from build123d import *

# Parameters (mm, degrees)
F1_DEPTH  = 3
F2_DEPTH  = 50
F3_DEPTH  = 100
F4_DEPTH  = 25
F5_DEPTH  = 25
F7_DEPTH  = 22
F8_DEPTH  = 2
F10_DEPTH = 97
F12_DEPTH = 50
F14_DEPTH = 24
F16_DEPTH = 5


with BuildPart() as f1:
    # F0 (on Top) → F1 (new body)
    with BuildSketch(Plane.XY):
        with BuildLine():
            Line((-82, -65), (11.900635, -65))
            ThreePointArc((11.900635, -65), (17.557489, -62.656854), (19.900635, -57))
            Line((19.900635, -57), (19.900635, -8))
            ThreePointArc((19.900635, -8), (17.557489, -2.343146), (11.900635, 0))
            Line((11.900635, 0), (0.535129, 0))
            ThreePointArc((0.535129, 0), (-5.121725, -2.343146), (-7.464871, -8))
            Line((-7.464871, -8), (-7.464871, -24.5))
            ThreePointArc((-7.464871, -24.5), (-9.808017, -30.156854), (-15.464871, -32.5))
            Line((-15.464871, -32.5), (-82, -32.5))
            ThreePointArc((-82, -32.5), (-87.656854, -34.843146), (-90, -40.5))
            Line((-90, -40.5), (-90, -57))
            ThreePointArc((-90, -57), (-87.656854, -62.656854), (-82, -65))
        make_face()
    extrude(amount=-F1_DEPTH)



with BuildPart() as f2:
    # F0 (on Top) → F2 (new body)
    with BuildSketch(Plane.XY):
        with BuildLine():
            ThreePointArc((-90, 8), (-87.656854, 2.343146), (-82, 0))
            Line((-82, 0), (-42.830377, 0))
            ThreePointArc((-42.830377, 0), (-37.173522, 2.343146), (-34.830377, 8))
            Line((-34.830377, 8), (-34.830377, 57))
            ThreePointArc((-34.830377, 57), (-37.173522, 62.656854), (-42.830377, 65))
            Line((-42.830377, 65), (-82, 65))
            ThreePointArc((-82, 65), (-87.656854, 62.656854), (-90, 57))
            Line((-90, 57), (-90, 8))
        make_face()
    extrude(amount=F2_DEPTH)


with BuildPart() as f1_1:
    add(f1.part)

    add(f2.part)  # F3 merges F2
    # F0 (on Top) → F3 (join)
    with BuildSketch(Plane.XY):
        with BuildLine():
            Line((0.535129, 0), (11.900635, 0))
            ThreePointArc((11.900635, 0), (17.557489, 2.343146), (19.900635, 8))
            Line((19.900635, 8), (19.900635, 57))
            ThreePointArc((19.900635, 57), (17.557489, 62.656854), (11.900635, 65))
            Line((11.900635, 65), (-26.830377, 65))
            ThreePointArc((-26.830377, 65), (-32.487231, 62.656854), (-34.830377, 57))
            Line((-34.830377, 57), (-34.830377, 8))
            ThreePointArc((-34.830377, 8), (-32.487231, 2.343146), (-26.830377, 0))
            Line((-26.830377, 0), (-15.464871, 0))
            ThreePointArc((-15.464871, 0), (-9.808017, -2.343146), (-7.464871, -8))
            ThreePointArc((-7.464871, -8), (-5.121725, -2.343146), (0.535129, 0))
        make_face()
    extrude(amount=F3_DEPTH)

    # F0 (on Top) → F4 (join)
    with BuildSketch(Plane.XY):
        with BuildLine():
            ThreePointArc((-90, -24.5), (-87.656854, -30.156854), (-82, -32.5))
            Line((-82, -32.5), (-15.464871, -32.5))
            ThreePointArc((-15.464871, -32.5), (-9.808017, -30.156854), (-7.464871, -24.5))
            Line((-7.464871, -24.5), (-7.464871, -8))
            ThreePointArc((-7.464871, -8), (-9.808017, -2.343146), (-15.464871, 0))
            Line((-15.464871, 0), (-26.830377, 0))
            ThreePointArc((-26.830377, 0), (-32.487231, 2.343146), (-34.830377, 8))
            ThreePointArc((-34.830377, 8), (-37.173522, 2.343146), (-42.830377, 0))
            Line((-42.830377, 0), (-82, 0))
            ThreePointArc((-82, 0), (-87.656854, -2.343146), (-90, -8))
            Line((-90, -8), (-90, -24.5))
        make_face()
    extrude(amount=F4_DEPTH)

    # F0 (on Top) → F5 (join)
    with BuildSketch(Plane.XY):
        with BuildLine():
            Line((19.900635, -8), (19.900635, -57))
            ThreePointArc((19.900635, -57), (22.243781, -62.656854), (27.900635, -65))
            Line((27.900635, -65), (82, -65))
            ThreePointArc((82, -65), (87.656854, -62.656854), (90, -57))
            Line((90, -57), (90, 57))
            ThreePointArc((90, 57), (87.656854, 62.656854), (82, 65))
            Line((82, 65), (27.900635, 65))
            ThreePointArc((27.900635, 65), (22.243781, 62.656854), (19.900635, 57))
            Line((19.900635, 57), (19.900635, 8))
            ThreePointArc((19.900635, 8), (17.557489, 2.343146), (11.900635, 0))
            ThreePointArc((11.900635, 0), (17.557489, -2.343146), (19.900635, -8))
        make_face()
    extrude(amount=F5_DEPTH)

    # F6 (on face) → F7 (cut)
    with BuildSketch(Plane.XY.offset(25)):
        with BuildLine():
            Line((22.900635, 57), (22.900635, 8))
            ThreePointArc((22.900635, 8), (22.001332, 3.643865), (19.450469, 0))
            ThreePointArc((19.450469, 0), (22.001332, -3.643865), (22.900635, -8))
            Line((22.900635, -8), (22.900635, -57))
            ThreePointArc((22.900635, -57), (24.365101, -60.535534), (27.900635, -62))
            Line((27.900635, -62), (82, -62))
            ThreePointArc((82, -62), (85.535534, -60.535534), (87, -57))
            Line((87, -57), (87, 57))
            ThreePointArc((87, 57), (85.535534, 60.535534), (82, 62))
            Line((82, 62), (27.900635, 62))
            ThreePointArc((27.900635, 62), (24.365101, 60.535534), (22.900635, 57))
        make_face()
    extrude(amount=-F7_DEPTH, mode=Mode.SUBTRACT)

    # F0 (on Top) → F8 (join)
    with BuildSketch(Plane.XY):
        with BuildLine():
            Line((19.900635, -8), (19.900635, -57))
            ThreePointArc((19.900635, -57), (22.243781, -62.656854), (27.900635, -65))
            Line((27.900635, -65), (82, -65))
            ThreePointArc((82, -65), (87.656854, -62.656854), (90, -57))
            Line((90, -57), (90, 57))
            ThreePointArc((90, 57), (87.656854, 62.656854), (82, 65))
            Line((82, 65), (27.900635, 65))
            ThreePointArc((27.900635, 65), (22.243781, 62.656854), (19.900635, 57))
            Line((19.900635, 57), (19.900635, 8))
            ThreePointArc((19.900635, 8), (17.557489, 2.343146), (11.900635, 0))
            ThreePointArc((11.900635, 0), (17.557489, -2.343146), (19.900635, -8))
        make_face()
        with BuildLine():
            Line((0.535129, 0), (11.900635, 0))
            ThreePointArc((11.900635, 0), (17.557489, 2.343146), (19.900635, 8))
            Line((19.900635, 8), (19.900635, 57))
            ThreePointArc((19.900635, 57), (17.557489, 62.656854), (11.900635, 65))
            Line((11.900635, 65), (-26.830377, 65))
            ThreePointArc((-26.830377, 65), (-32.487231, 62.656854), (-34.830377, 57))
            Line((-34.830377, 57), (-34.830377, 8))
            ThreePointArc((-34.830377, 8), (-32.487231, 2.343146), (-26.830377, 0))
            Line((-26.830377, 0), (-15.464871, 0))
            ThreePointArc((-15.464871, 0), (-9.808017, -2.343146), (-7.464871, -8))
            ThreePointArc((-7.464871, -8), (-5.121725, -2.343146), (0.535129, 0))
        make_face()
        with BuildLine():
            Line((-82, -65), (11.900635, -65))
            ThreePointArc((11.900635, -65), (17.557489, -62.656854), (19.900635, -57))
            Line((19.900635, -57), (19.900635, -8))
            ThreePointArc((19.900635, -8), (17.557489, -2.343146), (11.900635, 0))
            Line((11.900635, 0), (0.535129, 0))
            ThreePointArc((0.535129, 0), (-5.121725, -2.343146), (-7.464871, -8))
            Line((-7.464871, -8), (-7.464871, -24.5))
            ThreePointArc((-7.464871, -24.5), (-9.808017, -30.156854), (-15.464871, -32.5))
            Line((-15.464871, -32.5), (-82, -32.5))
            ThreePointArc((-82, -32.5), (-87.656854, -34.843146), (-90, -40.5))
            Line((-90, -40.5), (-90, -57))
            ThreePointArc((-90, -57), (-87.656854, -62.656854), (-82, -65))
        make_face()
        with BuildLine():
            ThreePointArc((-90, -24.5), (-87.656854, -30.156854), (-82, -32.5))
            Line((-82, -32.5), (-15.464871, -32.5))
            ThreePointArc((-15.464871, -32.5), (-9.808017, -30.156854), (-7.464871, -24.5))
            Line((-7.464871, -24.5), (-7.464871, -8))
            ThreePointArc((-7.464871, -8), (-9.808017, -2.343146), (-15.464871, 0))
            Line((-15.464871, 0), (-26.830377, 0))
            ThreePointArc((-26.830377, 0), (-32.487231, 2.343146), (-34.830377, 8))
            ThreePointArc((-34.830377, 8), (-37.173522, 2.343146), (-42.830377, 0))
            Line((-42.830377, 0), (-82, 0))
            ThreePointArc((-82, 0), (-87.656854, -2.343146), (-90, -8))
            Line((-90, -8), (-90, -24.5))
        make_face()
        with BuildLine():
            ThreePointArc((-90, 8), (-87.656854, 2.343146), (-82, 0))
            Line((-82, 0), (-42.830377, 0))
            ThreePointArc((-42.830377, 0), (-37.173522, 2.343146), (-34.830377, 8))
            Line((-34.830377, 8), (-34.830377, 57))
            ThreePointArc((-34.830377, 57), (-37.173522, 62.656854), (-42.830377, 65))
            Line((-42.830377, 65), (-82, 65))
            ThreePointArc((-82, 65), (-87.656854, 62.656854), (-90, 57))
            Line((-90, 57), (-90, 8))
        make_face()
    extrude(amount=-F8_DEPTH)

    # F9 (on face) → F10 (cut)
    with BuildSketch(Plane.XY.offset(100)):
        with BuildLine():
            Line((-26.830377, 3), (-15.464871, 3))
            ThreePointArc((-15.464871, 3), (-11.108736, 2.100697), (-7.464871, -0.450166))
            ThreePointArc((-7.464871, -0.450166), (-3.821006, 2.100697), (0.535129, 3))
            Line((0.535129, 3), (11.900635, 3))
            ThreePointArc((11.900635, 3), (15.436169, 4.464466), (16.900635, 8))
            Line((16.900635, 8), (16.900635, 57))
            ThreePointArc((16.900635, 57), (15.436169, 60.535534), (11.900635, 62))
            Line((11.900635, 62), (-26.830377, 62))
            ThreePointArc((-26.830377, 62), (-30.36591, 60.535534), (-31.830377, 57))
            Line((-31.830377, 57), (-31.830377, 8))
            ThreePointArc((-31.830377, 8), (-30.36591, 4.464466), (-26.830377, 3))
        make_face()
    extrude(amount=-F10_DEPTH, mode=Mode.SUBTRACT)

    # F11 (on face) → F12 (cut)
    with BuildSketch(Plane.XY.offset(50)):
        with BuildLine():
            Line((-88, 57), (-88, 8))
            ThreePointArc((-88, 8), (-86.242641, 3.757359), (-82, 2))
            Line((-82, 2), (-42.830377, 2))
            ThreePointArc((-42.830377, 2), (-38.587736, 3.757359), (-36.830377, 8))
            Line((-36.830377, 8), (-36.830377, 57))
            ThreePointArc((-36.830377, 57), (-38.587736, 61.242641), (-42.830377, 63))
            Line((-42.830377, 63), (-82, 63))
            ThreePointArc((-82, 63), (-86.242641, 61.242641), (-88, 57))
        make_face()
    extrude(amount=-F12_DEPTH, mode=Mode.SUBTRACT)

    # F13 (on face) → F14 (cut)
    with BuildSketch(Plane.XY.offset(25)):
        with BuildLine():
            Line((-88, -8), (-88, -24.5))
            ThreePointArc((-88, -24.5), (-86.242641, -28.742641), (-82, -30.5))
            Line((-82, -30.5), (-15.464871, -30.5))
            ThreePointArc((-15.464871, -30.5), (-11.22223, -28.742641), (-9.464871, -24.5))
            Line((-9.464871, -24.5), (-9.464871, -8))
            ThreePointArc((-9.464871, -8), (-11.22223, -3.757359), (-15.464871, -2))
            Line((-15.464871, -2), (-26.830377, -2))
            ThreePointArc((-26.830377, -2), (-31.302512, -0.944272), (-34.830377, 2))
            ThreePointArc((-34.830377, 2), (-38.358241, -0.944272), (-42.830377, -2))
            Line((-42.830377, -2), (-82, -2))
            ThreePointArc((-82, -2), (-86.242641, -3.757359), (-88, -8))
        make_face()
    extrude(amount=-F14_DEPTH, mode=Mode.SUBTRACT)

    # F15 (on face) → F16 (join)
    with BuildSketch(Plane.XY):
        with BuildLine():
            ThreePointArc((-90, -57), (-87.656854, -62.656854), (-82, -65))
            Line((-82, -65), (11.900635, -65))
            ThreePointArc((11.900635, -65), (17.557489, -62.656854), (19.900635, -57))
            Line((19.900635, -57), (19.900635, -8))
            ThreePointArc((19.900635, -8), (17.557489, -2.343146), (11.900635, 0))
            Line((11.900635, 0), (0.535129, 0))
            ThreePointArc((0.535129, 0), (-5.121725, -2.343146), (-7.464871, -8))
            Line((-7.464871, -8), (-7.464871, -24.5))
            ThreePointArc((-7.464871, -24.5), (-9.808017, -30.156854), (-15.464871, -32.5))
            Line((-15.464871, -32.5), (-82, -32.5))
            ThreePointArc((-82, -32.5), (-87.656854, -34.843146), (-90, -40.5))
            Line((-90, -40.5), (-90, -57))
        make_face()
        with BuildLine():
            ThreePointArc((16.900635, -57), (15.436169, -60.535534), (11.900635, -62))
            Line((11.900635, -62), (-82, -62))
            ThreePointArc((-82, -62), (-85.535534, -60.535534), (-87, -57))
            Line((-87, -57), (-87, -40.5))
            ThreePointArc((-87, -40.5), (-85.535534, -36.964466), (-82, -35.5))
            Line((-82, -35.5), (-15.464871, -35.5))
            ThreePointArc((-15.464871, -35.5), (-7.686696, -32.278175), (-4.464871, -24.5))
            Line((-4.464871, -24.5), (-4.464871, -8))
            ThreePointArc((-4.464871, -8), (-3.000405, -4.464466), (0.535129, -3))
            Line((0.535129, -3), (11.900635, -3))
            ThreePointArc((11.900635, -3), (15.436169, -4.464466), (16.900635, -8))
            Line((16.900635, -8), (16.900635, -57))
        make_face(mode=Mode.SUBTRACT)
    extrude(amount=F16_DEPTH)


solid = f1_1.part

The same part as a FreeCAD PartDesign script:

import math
import FreeCAD as App
import Part
import Sketcher
Q = App.Units.Quantity

doc = App.newDocument("Part")
body = doc.addObject("PartDesign::Body", "Body")

sketch1 = doc.addObject("Sketcher::SketchObject", "Sketch")
body.addObject(sketch1)
sketch1.AttachmentSupport = (doc.XY_Plane, [""])
sketch1.MapMode = "FlatFace"
sketch1.addGeometry([
    Part.LineSegment(App.Vector(-82, -65, 0), App.Vector(12, -65, 0)),
    Part.ArcOfCircle(Part.Circle(App.Vector(12, -57, 0), App.Vector(0, 0, 1), 8), math.radians(-90), math.radians(0)),
    Part.LineSegment(App.Vector(20, -57, 0), App.Vector(20, -8, 0)),
    Part.ArcOfCircle(Part.Circle(App.Vector(12, -8, 0), App.Vector(0, 0, 1), 8), math.radians(0), math.radians(90)),
    Part.LineSegment(App.Vector(12, 0, 0), App.Vector(1, 0, 0)),
    Part.ArcOfCircle(Part.Circle(App.Vector(1, -8, 0), App.Vector(0, 0, 1), 8), math.radians(90), math.radians(180)),
    Part.LineSegment(App.Vector(-7, -8, 0), App.Vector(-7, -24, 0)),
    Part.ArcOfCircle(Part.Circle(App.Vector(-15, -24, 0), App.Vector(0, 0, 1), 8), math.radians(-90), math.radians(0)),
    Part.LineSegment(App.Vector(-15, -32, 0), App.Vector(-82, -32, 0)),
    Part.ArcOfCircle(Part.Circle(App.Vector(-82, -41, 0), App.Vector(0, 0, 1), 8), math.radians(90), math.radians(180)),
    Part.LineSegment(App.Vector(-90, -40, 0), App.Vector(-90, -57, 0)),
    Part.ArcOfCircle(Part.Circle(App.Vector(-82, -57, 0), App.Vector(0, 0, 1), 8), math.radians(-180), math.radians(-90)),
], False)
sketch1.addConstraint([
    Sketcher.Constraint("Tangent", 0, 2, 1, 1),
    Sketcher.Constraint("Tangent", 1, 2, 2, 1),
    Sketcher.Constraint("Tangent", 2, 2, 3, 1),
    Sketcher.Constraint("Tangent", 3, 2, 4, 1),
    Sketcher.Constraint("Tangent", 4, 2, 5, 1),
    Sketcher.Constraint("Tangent", 5, 2, 6, 1),
    Sketcher.Constraint("Tangent", 6, 2, 7, 2),
    Sketcher.Constraint("Tangent", 7, 1, 8, 1),
    Sketcher.Constraint("Tangent", 8, 2, 9, 1),
    Sketcher.Constraint("Tangent", 9, 2, 10, 1),
    Sketcher.Constraint("Tangent", 10, 2, 11, 1),
    Sketcher.Constraint("Tangent", 11, 2, 0, 1),
    Sketcher.Constraint("Horizontal", 0),
    Sketcher.Constraint("Vertical", 2),
    Sketcher.Constraint("Horizontal", 4),
    Sketcher.Constraint("Vertical", 6),
    Sketcher.Constraint("Horizontal", 8),
    Sketcher.Constraint("Vertical", 10),
    Sketcher.Constraint("Equal", 1, 3),
    Sketcher.Constraint("Equal", 3, 5),
    Sketcher.Constraint("Equal", 5, 7),
    Sketcher.Constraint("Equal", 7, 9),
    Sketcher.Constraint("Equal", 9, 11),
    Sketcher.Constraint("PointOnObject", 3, 2, -1),
    Sketcher.Constraint("Equal", 6, 10),
    Sketcher.Constraint("Radius", 1, Q("8.000001 mm")),
    Sketcher.Constraint("DistanceY", 2, 1, 2, 2, Q("49 mm")),
    Sketcher.Constraint("DistanceX", 9, 3, -1, 1, Q("81.999999 mm")),
    Sketcher.Constraint("DistanceX", 8, 2, 8, 1, Q("66.535129 mm")),
    Sketcher.Constraint("DistanceX", 0, 1, 0, 2, Q("93.900635 mm")),
])
pad1 = doc.addObject("PartDesign::Pad", "Pad")
body.addObject(pad1)
pad1.Profile = sketch1
pad1.Length = 3
pad1.Reversed = True
body2 = doc.addObject("PartDesign::Body", "Body001")

sketch2 = doc.addObject("Sketcher::SketchObject", "Sketch001")
body2.addObject(sketch2)
sketch2.AttachmentSupport = (doc.getObject("XY_Plane001"), [""])
sketch2.MapMode = "FlatFace"
sketch2.addGeometry([
    Part.ArcOfCircle(Part.Circle(App.Vector(-82, 8, 0), App.Vector(0, 0, 1), 8), math.radians(-180), math.radians(-90)),
    Part.LineSegment(App.Vector(-82, 0, 0), App.Vector(-43, 0, 0)),
    Part.ArcOfCircle(Part.Circle(App.Vector(-43, 8, 0), App.Vector(0, 0, 1), 8), math.radians(-90), math.radians(0)),
    Part.LineSegment(App.Vector(-35, 8, 0), App.Vector(-35, 57, 0)),
    Part.ArcOfCircle(Part.Circle(App.Vector(-43, 57, 0), App.Vector(0, 0, 1), 8), math.radians(0), math.radians(90)),
    Part.LineSegment(App.Vector(-43, 65, 0), App.Vector(-82, 65, 0)),
    Part.ArcOfCircle(Part.Circle(App.Vector(-82, 57, 0), App.Vector(0, 0, 1), 8), math.radians(90), math.radians(180)),
    Part.LineSegment(App.Vector(-90, 57, 0), App.Vector(-90, 8, 0)),
], False)
sketch2.addConstraint([
    Sketcher.Constraint("Tangent", 0, 2, 1, 1),
    Sketcher.Constraint("Tangent", 1, 2, 2, 1),
    Sketcher.Constraint("Tangent", 2, 2, 3, 1),
    Sketcher.Constraint("Tangent", 3, 2, 4, 1),
    Sketcher.Constraint("Tangent", 4, 2, 5, 1),
    Sketcher.Constraint("Tangent", 5, 2, 6, 1),
    Sketcher.Constraint("Tangent", 6, 2, 7, 1),
    Sketcher.Constraint("Tangent", 7, 2, 0, 1),
    Sketcher.Constraint("Horizontal", 1),
    Sketcher.Constraint("Vertical", 3),
    Sketcher.Constraint("Horizontal", 5),
    Sketcher.Constraint("Vertical", 7),
    Sketcher.Constraint("Equal", 0, 2),
    Sketcher.Constraint("Equal", 2, 4),
    Sketcher.Constraint("Equal", 4, 6),
    Sketcher.Constraint("PointOnObject", 0, 2, -1),
    Sketcher.Constraint("Radius", 0, Q("8.000001 mm")),
    Sketcher.Constraint("DistanceY", 3, 1, 3, 2, Q("49 mm")),
    Sketcher.Constraint("DistanceX", 0, 3, -1, 1, Q("81.999999 mm")),
    Sketcher.Constraint("DistanceX", 1, 1, 1, 2, Q("39.169623 mm")),
])
pad2 = doc.addObject("PartDesign::Pad", "Pad001")
body2.addObject(pad2)
pad2.Profile = sketch2
pad2.Length = 50
body.AllowCompound = True
doc.recompute()

boolean = doc.addObject("PartDesign::Boolean", "Boolean")
body.addObject(boolean)
boolean.Type = "Fuse"
boolean.addObjects([body2])

sketch3 = doc.addObject("Sketcher::SketchObject", "Sketch002")
body.addObject(sketch3)
sketch3.AttachmentSupport = (doc.XY_Plane, [""])
sketch3.MapMode = "FlatFace"
sketch3.addGeometry([
    Part.LineSegment(App.Vector(1, 0, 0), App.Vector(12, 0, 0)),
    Part.ArcOfCircle(Part.Circle(App.Vector(12, 8, 0), App.Vector(0, 0, 1), 8), math.radians(-90), math.radians(0)),
    Part.LineSegment(App.Vector(20, 8, 0), App.Vector(20, 57, 0)),
    Part.ArcOfCircle(Part.Circle(App.Vector(12, 57, 0), App.Vector(0, 0, 1), 8), math.radians(0), math.radians(90)),
    Part.LineSegment(App.Vector(12, 65, 0), App.Vector(-27, 65, 0)),
    Part.ArcOfCircle(Part.Circle(App.Vector(-27, 57, 0), App.Vector(0, 0, 1), 8), math.radians(90), math.radians(180)),
    Part.LineSegment(App.Vector(-35, 57, 0), App.Vector(-35, 8, 0)),
    Part.ArcOfCircle(Part.Circle(App.Vector(-27, 8, 0), App.Vector(0, 0, 1), 8), math.radians(-180), math.radians(-90)),
    Part.LineSegment(App.Vector(-27, 0, 0), App.Vector(-15, 0, 0)),
    Part.ArcOfCircle(Part.Circle(App.Vector(-15, -8, 0), App.Vector(0, 0, 1), 8), math.radians(0), math.radians(90)),
    Part.ArcOfCircle(Part.Circle(App.Vector(1, -8, 0), App.Vector(0, 0, 1), 8), math.radians(90), math.radians(180)),
], False)
sketch3.addConstraint([
    Sketcher.Constraint("Tangent", 0, 2, 1, 1),
    Sketcher.Constraint("Tangent", 1, 2, 2, 1),
    Sketcher.Constraint("Tangent", 2, 2, 3, 1),
    Sketcher.Constraint("Tangent", 3, 2, 4, 1),
    Sketcher.Constraint("Tangent", 4, 2, 5, 1),
    Sketcher.Constraint("Tangent", 5, 2, 6, 1),
    Sketcher.Constraint("Tangent", 6, 2, 7, 1),
    Sketcher.Constraint("Tangent", 7, 2, 8, 1),
    Sketcher.Constraint("Tangent", 8, 2, 9, 2),
    Sketcher.Constraint("Tangent", 9, 1, 10, 2),
    Sketcher.Constraint("Tangent", 10, 1, 0, 1),
    Sketcher.Constraint("Horizontal", 0),
    Sketcher.Constraint("Vertical", 2),
    Sketcher.Constraint("Horizontal", 4),
    Sketcher.Constraint("Vertical", 6),
    Sketcher.Constraint("Horizontal", 8),
    Sketcher.Constraint("Equal", 1, 3),
    Sketcher.Constraint("Equal", 3, 5),
    Sketcher.Constraint("Equal", 5, 7),
    Sketcher.Constraint("Equal", 7, 9),
    Sketcher.Constraint("Equal", 9, 10),
    Sketcher.Constraint("PointOnObject", 0, 2, -1),
    Sketcher.Constraint("PointOnObject", 7, 2, -1),
    Sketcher.Constraint("Equal", 0, 8),
    Sketcher.Constraint("Radius", 1, Q("8.000001 mm")),
    Sketcher.Constraint("DistanceY", 2, 1, 2, 2, Q("49 mm")),
    Sketcher.Constraint("DistanceX", 0, 1, 0, 2, Q("11.365506 mm")),
    Sketcher.Constraint("DistanceX", 9, 3, -1, 1, Q("15.464872 mm")),
])
pad3 = doc.addObject("PartDesign::Pad", "Pad002")
body.addObject(pad3)
pad3.Profile = sketch3
pad3.Length = 100

sketch4 = doc.addObject("Sketcher::SketchObject", "Sketch003")
body.addObject(sketch4)
sketch4.AttachmentSupport = (doc.XY_Plane, [""])
sketch4.MapMode = "FlatFace"
sketch4.addGeometry([
    Part.ArcOfCircle(Part.Circle(App.Vector(-82, -24, 0), App.Vector(0, 0, 1), 8), math.radians(-180), math.radians(-90)),
    Part.LineSegment(App.Vector(-82, -32, 0), App.Vector(-15, -32, 0)),
    Part.ArcOfCircle(Part.Circle(App.Vector(-15, -24, 0), App.Vector(0, 0, 1), 8), math.radians(-90), math.radians(0)),
    Part.LineSegment(App.Vector(-7, -24, 0), App.Vector(-7, -8, 0)),
    Part.ArcOfCircle(Part.Circle(App.Vector(-15, -8, 0), App.Vector(0, 0, 1), 8), math.radians(0), math.radians(90)),
    Part.LineSegment(App.Vector(-15, 0, 0), App.Vector(-27, 0, 0)),
    Part.ArcOfCircle(Part.Circle(App.Vector(-27, 8, 0), App.Vector(0, 0, 1), 8), math.radians(-180), math.radians(-90)),
    Part.ArcOfCircle(Part.Circle(App.Vector(-43, 8, 0), App.Vector(0, 0, 1), 8), math.radians(-90), math.radians(0)),
    Part.LineSegment(App.Vector(-43, 0, 0), App.Vector(-82, 0, 0)),
    Part.ArcOfCircle(Part.Circle(App.Vector(-82, -8, 0), App.Vector(0, 0, 1), 8), math.radians(90), math.radians(180)),
    Part.LineSegment(App.Vector(-90, -8, 0), App.Vector(-90, -24, 0)),
], False)
sketch4.addConstraint([
    Sketcher.Constraint("Tangent", 0, 2, 1, 1),
    Sketcher.Constraint("Tangent", 1, 2, 2, 1),
    Sketcher.Constraint("Tangent", 2, 2, 3, 1),
    Sketcher.Constraint("Tangent", 3, 2, 4, 1),
    Sketcher.Constraint("Tangent", 4, 2, 5, 1),
    Sketcher.Constraint("Tangent", 5, 2, 6, 2),
    Sketcher.Constraint("Tangent", 6, 1, 7, 2),
    Sketcher.Constraint("Tangent", 7, 1, 8, 1),
    Sketcher.Constraint("Tangent", 8, 2, 9, 1),
    Sketcher.Constraint("Tangent", 9, 2, 10, 1),
    Sketcher.Constraint("Tangent", 10, 2, 0, 1),
    Sketcher.Constraint("Horizontal", 1),
    Sketcher.Constraint("Vertical", 3),
    Sketcher.Constraint("Horizontal", 5),
    Sketcher.Constraint("Horizontal", 8),
    Sketcher.Constraint("Vertical", 10),
    Sketcher.Constraint("Equal", 0, 2),
    Sketcher.Constraint("Equal", 2, 4),
    Sketcher.Constraint("Equal", 4, 6),
    Sketcher.Constraint("Equal", 6, 7),
    Sketcher.Constraint("Equal", 7, 9),
    Sketcher.Constraint("PointOnObject", 4, 2, -1),
    Sketcher.Constraint("PointOnObject", 7, 1, -1),
    Sketcher.Constraint("Radius", 0, Q("8.000001 mm")),
    Sketcher.Constraint("DistanceY", 3, 1, 3, 2, Q("16.5 mm")),
    Sketcher.Constraint("DistanceX", 0, 3, -1, 1, Q("81.999999 mm")),
    Sketcher.Constraint("DistanceX", 1, 1, 1, 2, Q("66.535129 mm")),
    Sketcher.Constraint("DistanceX", 5, 2, 5, 1, Q("11.365506 mm")),
])
pad4 = doc.addObject("PartDesign::Pad", "Pad003")
body.addObject(pad4)
pad4.Profile = sketch4
pad4.Length = 25

sketch5 = doc.addObject("Sketcher::SketchObject", "Sketch004")
body.addObject(sketch5)
sketch5.AttachmentSupport = (doc.XY_Plane, [""])
sketch5.MapMode = "FlatFace"
sketch5.addGeometry([
    Part.LineSegment(App.Vector(20, -8, 0), App.Vector(20, -57, 0)),
    Part.ArcOfCircle(Part.Circle(App.Vector(28, -57, 0), App.Vector(0, 0, 1), 8), math.radians(-180), math.radians(-90)),
    Part.LineSegment(App.Vector(28, -65, 0), App.Vector(82, -65, 0)),
    Part.ArcOfCircle(Part.Circle(App.Vector(82, -57, 0), App.Vector(0, 0, 1), 8), math.radians(-90), math.radians(0)),
    Part.LineSegment(App.Vector(90, -57, 0), App.Vector(90, 57, 0)),
    Part.ArcOfCircle(Part.Circle(App.Vector(82, 57, 0), App.Vector(0, 0, 1), 8), math.radians(0), math.radians(90)),
    Part.LineSegment(App.Vector(82, 65, 0), App.Vector(28, 65, 0)),
    Part.ArcOfCircle(Part.Circle(App.Vector(28, 57, 0), App.Vector(0, 0, 1), 8), math.radians(90), math.radians(180)),
    Part.LineSegment(App.Vector(20, 57, 0), App.Vector(20, 8, 0)),
    Part.ArcOfCircle(Part.Circle(App.Vector(12, 8, 0), App.Vector(0, 0, 1), 8), math.radians(-90), math.radians(0)),
    Part.ArcOfCircle(Part.Circle(App.Vector(12, -8, 0), App.Vector(0, 0, 1), 8), math.radians(0), math.radians(90)),
], False)
sketch5.addConstraint([
    Sketcher.Constraint("Tangent", 0, 2, 1, 1),
    Sketcher.Constraint("Tangent", 1, 2, 2, 1),
    Sketcher.Constraint("Tangent", 2, 2, 3, 1),
    Sketcher.Constraint("Tangent", 3, 2, 4, 1),
    Sketcher.Constraint("Tangent", 4, 2, 5, 1),
    Sketcher.Constraint("Tangent", 5, 2, 6, 1),
    Sketcher.Constraint("Tangent", 6, 2, 7, 1),
    Sketcher.Constraint("Tangent", 7, 2, 8, 1),
    Sketcher.Constraint("Tangent", 8, 2, 9, 2),
    Sketcher.Constraint("Tangent", 9, 1, 10, 2),
    Sketcher.Constraint("Tangent", 10, 1, 0, 1),
    Sketcher.Constraint("Vertical", 0),
    Sketcher.Constraint("Horizontal", 2),
    Sketcher.Constraint("Vertical", 4),
    Sketcher.Constraint("Horizontal", 6),
    Sketcher.Constraint("Vertical", 8),
    Sketcher.Constraint("Equal", 1, 3),
    Sketcher.Constraint("Equal", 3, 5),
    Sketcher.Constraint("Equal", 5, 7),
    Sketcher.Constraint("Equal", 7, 9),
    Sketcher.Constraint("Equal", 9, 10),
    Sketcher.Constraint("Symmetric", 1, 3, 7, 3, -1),
    Sketcher.Constraint("PointOnObject", 9, 1, -1),
    Sketcher.Constraint("Radius", 1, Q("8.000001 mm")),
    Sketcher.Constraint("DistanceY", 0, 2, 0, 1, Q("49 mm")),
    Sketcher.Constraint("DistanceX", -1, 1, 3, 3, Q("81.999999 mm")),
    Sketcher.Constraint("DistanceX", 2, 1, 2, 2, Q("54.099365 mm")),
])
pad5 = doc.addObject("PartDesign::Pad", "Pad004")
body.addObject(pad5)
pad5.Profile = sketch5
pad5.Length = 25

sketch6 = doc.addObject("Sketcher::SketchObject", "Sketch005")
body.addObject(sketch6)
sketch6.AttachmentSupport = (doc.XY_Plane, [""])
sketch6.MapMode = "FlatFace"
sketch6.AttachmentOffset = App.Placement(App.Vector(0, 0, 25), App.Rotation())
sketch6.addGeometry([
    Part.LineSegment(App.Vector(22.9, 57, 0), App.Vector(22.9, 8, 0)),
    Part.ArcOfCircle(Part.Circle(App.Vector(11.9, 8, 0), App.Vector(0, 0, 1), 11), math.radians(-47), math.radians(0)),
    Part.ArcOfCircle(Part.Circle(App.Vector(11.9, -8, 0), App.Vector(0, 0, 1), 11), math.radians(0), math.radians(47)),
    Part.LineSegment(App.Vector(22.9, -8, 0), App.Vector(22.9, -57, 0)),
    Part.ArcOfCircle(Part.Circle(App.Vector(27.9, -57, 0), App.Vector(0, 0, 1), 5), math.radians(180), math.radians(270)),
    Part.LineSegment(App.Vector(27.9, -62, 0), App.Vector(82, -62, 0)),
    Part.ArcOfCircle(Part.Circle(App.Vector(82, -57, 0), App.Vector(0, 0, 1), 5), math.radians(-90), math.radians(0)),
    Part.LineSegment(App.Vector(87, -57, 0), App.Vector(87, 57, 0)),
    Part.ArcOfCircle(Part.Circle(App.Vector(82, 57, 0), App.Vector(0, 0, 1), 5), math.radians(0), math.radians(90)),
    Part.LineSegment(App.Vector(82, 62, 0), App.Vector(27.9, 62, 0)),
    Part.ArcOfCircle(Part.Circle(App.Vector(27.9, 57, 0), App.Vector(0, 0, 1), 5), math.radians(90), math.radians(180)),
], False)
sketch6.addConstraint([
    Sketcher.Constraint("Tangent", 0, 2, 1, 2),
    Sketcher.Constraint("Coincident", 1, 1, 2, 2),
    Sketcher.Constraint("Tangent", 2, 1, 3, 1),
    Sketcher.Constraint("Tangent", 3, 2, 4, 1),
    Sketcher.Constraint("Tangent", 4, 2, 5, 1),
    Sketcher.Constraint("Tangent", 5, 2, 6, 1),
    Sketcher.Constraint("Tangent", 6, 2, 7, 1),
    Sketcher.Constraint("Tangent", 7, 2, 8, 1),
    Sketcher.Constraint("Tangent", 8, 2, 9, 1),
    Sketcher.Constraint("Tangent", 9, 2, 10, 1),
    Sketcher.Constraint("Tangent", 10, 2, 0, 1),
    Sketcher.Constraint("Vertical", 0),
    Sketcher.Constraint("Vertical", 3),
    Sketcher.Constraint("Horizontal", 5),
    Sketcher.Constraint("Vertical", 7),
    Sketcher.Constraint("Horizontal", 9),
    Sketcher.Constraint("Equal", 1, 2),
    Sketcher.Constraint("Equal", 4, 6),
    Sketcher.Constraint("Equal", 6, 8),
    Sketcher.Constraint("Equal", 8, 10),
    Sketcher.Constraint("Symmetric", 1, 3, 2, 3, -1),
    Sketcher.Constraint("Equal", 0, 3),
    Sketcher.Constraint("Radius", 4, Q("5 mm")),
    Sketcher.Constraint("DistanceY", 0, 2, 0, 1, Q("49 mm")),
    Sketcher.Constraint("DistanceY", 7, 1, 7, 2, Q("114 mm")),
    Sketcher.Constraint("DistanceX", -1, 1, 6, 3, Q("82 mm")),
    Sketcher.Constraint("DistanceX", 2, 3, 4, 3, Q("16.000002 mm")),
    Sketcher.Constraint("DistanceX", 5, 1, 5, 2, Q("54.099365 mm")),
])
pocket1 = doc.addObject("PartDesign::Pocket", "Pocket")
body.addObject(pocket1)
pocket1.Profile = sketch6
pocket1.Length = 22

sketch7 = doc.addObject("Sketcher::SketchObject", "Sketch006")
body.addObject(sketch7)
sketch7.AttachmentSupport = (doc.XY_Plane, [""])
sketch7.MapMode = "FlatFace"
sketch7.addGeometry([
    Part.ArcOfCircle(Part.Circle(App.Vector(28, -57, 0), App.Vector(0, 0, 1), 8), math.radians(-180), math.radians(-90)),
    Part.LineSegment(App.Vector(28, -65, 0), App.Vector(82, -65, 0)),
    Part.ArcOfCircle(Part.Circle(App.Vector(82, -57, 0), App.Vector(0, 0, 1), 8), math.radians(-90), math.radians(0)),
    Part.LineSegment(App.Vector(90, -57, 0), App.Vector(90, 57, 0)),
    Part.ArcOfCircle(Part.Circle(App.Vector(82, 57, 0), App.Vector(0, 0, 1), 8), math.radians(0), math.radians(90)),
    Part.LineSegment(App.Vector(82, 65, 0), App.Vector(28, 65, 0)),
    Part.ArcOfCircle(Part.Circle(App.Vector(28, 57, 0), App.Vector(0, 0, 1), 8), math.radians(90), math.radians(180)),
    Part.ArcOfCircle(Part.Circle(App.Vector(12, 57, 0), App.Vector(0, 0, 1), 8), math.radians(0), math.radians(90)),
    Part.LineSegment(App.Vector(12, 65, 0), App.Vector(-27, 65, 0)),
    Part.ArcOfCircle(Part.Circle(App.Vector(-27, 57, 0), App.Vector(0, 0, 1), 8), math.radians(90), math.radians(180)),
    Part.ArcOfCircle(Part.Circle(App.Vector(-43, 57, 0), App.Vector(0, 0, 1), 8), math.radians(0), math.radians(90)),
    Part.LineSegment(App.Vector(-43, 65, 0), App.Vector(-82, 65, 0)),
    Part.ArcOfCircle(Part.Circle(App.Vector(-82, 57, 0), App.Vector(0, 0, 1), 8), math.radians(90), math.radians(180)),
    Part.LineSegment(App.Vector(-90, 57, 0), App.Vector(-90, 8, 0)),
    Part.ArcOfCircle(Part.Circle(App.Vector(-82, 8, 0), App.Vector(0, 0, 1), 8), math.radians(-180), math.radians(-90)),
    Part.ArcOfCircle(Part.Circle(App.Vector(-82, -8, 0), App.Vector(0, 0, 1), 8), math.radians(90), math.radians(180)),
    Part.LineSegment(App.Vector(-90, -8, 0), App.Vector(-90, -24, 0)),
    Part.ArcOfCircle(Part.Circle(App.Vector(-82, -24, 0), App.Vector(0, 0, 1), 8), math.radians(-180), math.radians(-90)),
    Part.ArcOfCircle(Part.Circle(App.Vector(-82, -41, 0), App.Vector(0, 0, 1), 8), math.radians(90), math.radians(180)),
    Part.LineSegment(App.Vector(-90, -40, 0), App.Vector(-90, -57, 0)),
    Part.ArcOfCircle(Part.Circle(App.Vector(-82, -57, 0), App.Vector(0, 0, 1), 8), math.radians(-180), math.radians(-90)),
    Part.LineSegment(App.Vector(-82, -65, 0), App.Vector(12, -65, 0)),
    Part.ArcOfCircle(Part.Circle(App.Vector(12, -57, 0), App.Vector(0, 0, 1), 8), math.radians(-90), math.radians(0)),
], False)
sketch7.addConstraint([
    Sketcher.Constraint("Tangent", 0, 2, 1, 1),
    Sketcher.Constraint("Tangent", 1, 2, 2, 1),
    Sketcher.Constraint("Tangent", 2, 2, 3, 1),
    Sketcher.Constraint("Tangent", 3, 2, 4, 1),
    Sketcher.Constraint("Tangent", 4, 2, 5, 1),
    Sketcher.Constraint("Tangent", 5, 2, 6, 1),
    Sketcher.Constraint("Tangent", 6, 2, 7, 1),
    Sketcher.Constraint("Tangent", 7, 2, 8, 1),
    Sketcher.Constraint("Tangent", 8, 2, 9, 1),
    Sketcher.Constraint("Tangent", 9, 2, 10, 1),
    Sketcher.Constraint("Tangent", 10, 2, 11, 1),
    Sketcher.Constraint("Tangent", 11, 2, 12, 1),
    Sketcher.Constraint("Tangent", 12, 2, 13, 1),
    Sketcher.Constraint("Tangent", 13, 2, 14, 1),
    Sketcher.Constraint("Tangent", 14, 2, 15, 1),
    Sketcher.Constraint("Tangent", 15, 2, 16, 1),
    Sketcher.Constraint("Tangent", 16, 2, 17, 1),
    Sketcher.Constraint("Tangent", 17, 2, 18, 1),
    Sketcher.Constraint("Tangent", 18, 2, 19, 1),
    Sketcher.Constraint("Tangent", 19, 2, 20, 1),
    Sketcher.Constraint("Tangent", 20, 2, 21, 1),
    Sketcher.Constraint("Tangent", 21, 2, 22, 1),
    Sketcher.Constraint("Tangent", 22, 2, 0, 1),
    Sketcher.Constraint("Horizontal", 1),
    Sketcher.Constraint("Vertical", 3),
    Sketcher.Constraint("Horizontal", 5),
    Sketcher.Constraint("Horizontal", 8),
    Sketcher.Constraint("Horizontal", 11),
    Sketcher.Constraint("Vertical", 13),
    Sketcher.Constraint("Vertical", 16),
    Sketcher.Constraint("Vertical", 19),
    Sketcher.Constraint("Horizontal", 21),
    Sketcher.Constraint("Equal", 0, 2),
    Sketcher.Constraint("Equal", 2, 4),
    Sketcher.Constraint("Equal", 4, 6),
    Sketcher.Constraint("Equal", 6, 7),
    Sketcher.Constraint("Equal", 7, 9),
    Sketcher.Constraint("Equal", 9, 10),
    Sketcher.Constraint("Equal", 10, 12),
    Sketcher.Constraint("Equal", 12, 14),
    Sketcher.Constraint("Equal", 14, 15),
    Sketcher.Constraint("Equal", 15, 17),
    Sketcher.Constraint("Equal", 17, 18),
    Sketcher.Constraint("Equal", 18, 20),
    Sketcher.Constraint("Equal", 20, 22),
    Sketcher.Constraint("Symmetric", 2, 3, 12, 3, -1, 1),
    Sketcher.Constraint("Symmetric", 4, 3, 20, 3, -1, 1),
    Sketcher.Constraint("Symmetric", 0, 3, 6, 3, -1),
    Sketcher.Constraint("Symmetric", 14, 3, 15, 3, -1),
    Sketcher.Constraint("Horizontal", 6, 3, 7, 3),
    Sketcher.Constraint("Equal", 16, 19),
    Sketcher.Constraint("Radius", 0, Q("8.000001 mm")),
    Sketcher.Constraint("DistanceY", 3, 1, 3, 2, Q("114 mm")),
    Sketcher.Constraint("DistanceX", -1, 1, 2, 3, Q("81.999999 mm")),
    Sketcher.Constraint("DistanceX", 1, 1, 1, 2, Q("54.099365 mm")),
    Sketcher.Constraint("DistanceX", 8, 2, 8, 1, Q("38.731012 mm")),
])
pad6 = doc.addObject("PartDesign::Pad", "Pad005")
body.addObject(pad6)
pad6.Profile = sketch7
pad6.Length = 2
pad6.Reversed = True

sketch8 = doc.addObject("Sketcher::SketchObject", "Sketch007")
body.addObject(sketch8)
sketch8.AttachmentSupport = (doc.XY_Plane, [""])
sketch8.MapMode = "FlatFace"
sketch8.AttachmentOffset = App.Placement(App.Vector(0, 0, 100), App.Rotation())
sketch8.addGeometry([
    Part.LineSegment(App.Vector(-26.8, 3, 0), App.Vector(-15.5, 3, 0)),
    Part.ArcOfCircle(Part.Circle(App.Vector(-15.5, -8, 0), App.Vector(0, 0, 1), 11), math.radians(43), math.radians(90)),
    Part.ArcOfCircle(Part.Circle(App.Vector(0.5, -8, 0), App.Vector(0, 0, 1), 11), math.radians(90), math.radians(137)),
    Part.LineSegment(App.Vector(0.5, 3, 0), App.Vector(11.9, 3, 0)),
    Part.ArcOfCircle(Part.Circle(App.Vector(11.9, 8, 0), App.Vector(0, 0, 1), 5), math.radians(-90), math.radians(0)),
    Part.LineSegment(App.Vector(16.9, 8, 0), App.Vector(16.9, 57, 0)),
    Part.ArcOfCircle(Part.Circle(App.Vector(11.9, 57, 0), App.Vector(0, 0, 1), 5), math.radians(0), math.radians(90)),
    Part.LineSegment(App.Vector(11.9, 62, 0), App.Vector(-26.8, 62, 0)),
    Part.ArcOfCircle(Part.Circle(App.Vector(-26.8, 57, 0), App.Vector(0, 0, 1), 5), math.radians(90), math.radians(180)),
    Part.LineSegment(App.Vector(-31.8, 57, 0), App.Vector(-31.8, 8, 0)),
    Part.ArcOfCircle(Part.Circle(App.Vector(-26.8, 8, 0), App.Vector(0, 0, 1), 5), math.radians(-180), math.radians(-90)),
], False)
sketch8.addConstraint([
    Sketcher.Constraint("Tangent", 0, 2, 1, 2),
    Sketcher.Constraint("Coincident", 1, 1, 2, 2),
    Sketcher.Constraint("Tangent", 2, 1, 3, 1),
    Sketcher.Constraint("Tangent", 3, 2, 4, 1),
    Sketcher.Constraint("Tangent", 4, 2, 5, 1),
    Sketcher.Constraint("Tangent", 5, 2, 6, 1),
    Sketcher.Constraint("Tangent", 6, 2, 7, 1),
    Sketcher.Constraint("Tangent", 7, 2, 8, 1),
    Sketcher.Constraint("Tangent", 8, 2, 9, 1),
    Sketcher.Constraint("Tangent", 9, 2, 10, 1),
    Sketcher.Constraint("Tangent", 10, 2, 0, 1),
    Sketcher.Constraint("Horizontal", 0),
    Sketcher.Constraint("Horizontal", 3),
    Sketcher.Constraint("Vertical", 5),
    Sketcher.Constraint("Horizontal", 7),
    Sketcher.Constraint("Vertical", 9),
    Sketcher.Constraint("Equal", 1, 2),
    Sketcher.Constraint("Equal", 4, 6),
    Sketcher.Constraint("Equal", 6, 8),
    Sketcher.Constraint("Equal", 8, 10),
    Sketcher.Constraint("Horizontal", 1, 3, 2, 3),
    Sketcher.Constraint("Equal", 0, 3),
    Sketcher.Constraint("Radius", 4, Q("5 mm")),
    Sketcher.Constraint("DistanceY", 5, 1, 5, 2, Q("49 mm")),
    Sketcher.Constraint("DistanceY", -1, 1, 4, 3, Q("8 mm")),
    Sketcher.Constraint("DistanceY", 2, 3, 4, 3, Q("16.000002 mm")),
    Sketcher.Constraint("DistanceX", 0, 2, 2, 3, Q("16.000001 mm")),
    Sketcher.Constraint("DistanceX", 0, 1, 0, 2, Q("11.365506 mm")),
    Sketcher.Constraint("DistanceX", -1, 1, 2, 3, Q("0.53513 mm")),
])
pocket2 = doc.addObject("PartDesign::Pocket", "Pocket001")
body.addObject(pocket2)
pocket2.Profile = sketch8
pocket2.Length = 97

sketch9 = doc.addObject("Sketcher::SketchObject", "Sketch008")
body.addObject(sketch9)
sketch9.AttachmentSupport = (doc.XY_Plane, [""])
sketch9.MapMode = "FlatFace"
sketch9.AttachmentOffset = App.Placement(App.Vector(0, 0, 50), App.Rotation())
sketch9.addGeometry([
    Part.LineSegment(App.Vector(-88, 57, 0), App.Vector(-88, 8, 0)),
    Part.ArcOfCircle(Part.Circle(App.Vector(-82, 8, 0), App.Vector(0, 0, 1), 6), math.radians(180), math.radians(270)),
    Part.LineSegment(App.Vector(-82, 2, 0), App.Vector(-43, 2, 0)),
    Part.ArcOfCircle(Part.Circle(App.Vector(-43, 8, 0), App.Vector(0, 0, 1), 6), math.radians(-90), math.radians(0)),
    Part.LineSegment(App.Vector(-37, 8, 0), App.Vector(-37, 57, 0)),
    Part.ArcOfCircle(Part.Circle(App.Vector(-43, 57, 0), App.Vector(0, 0, 1), 6), math.radians(0), math.radians(90)),
    Part.LineSegment(App.Vector(-43, 63, 0), App.Vector(-82, 63, 0)),
    Part.ArcOfCircle(Part.Circle(App.Vector(-82, 57, 0), App.Vector(0, 0, 1), 6), math.radians(90), math.radians(180)),
], False)
sketch9.addConstraint([
    Sketcher.Constraint("Tangent", 0, 2, 1, 1),
    Sketcher.Constraint("Tangent", 1, 2, 2, 1),
    Sketcher.Constraint("Tangent", 2, 2, 3, 1),
    Sketcher.Constraint("Tangent", 3, 2, 4, 1),
    Sketcher.Constraint("Tangent", 4, 2, 5, 1),
    Sketcher.Constraint("Tangent", 5, 2, 6, 1),
    Sketcher.Constraint("Tangent", 6, 2, 7, 1),
    Sketcher.Constraint("Tangent", 7, 2, 0, 1),
    Sketcher.Constraint("Vertical", 0),
    Sketcher.Constraint("Horizontal", 2),
    Sketcher.Constraint("Vertical", 4),
    Sketcher.Constraint("Horizontal", 6),
    Sketcher.Constraint("Equal", 1, 3),
    Sketcher.Constraint("Equal", 3, 5),
    Sketcher.Constraint("Equal", 5, 7),
    Sketcher.Constraint("Radius", 1, Q("5.999999 mm")),
    Sketcher.Constraint("DistanceY", 0, 2, 0, 1, Q("49 mm")),
    Sketcher.Constraint("DistanceX", 1, 3, -1, 1, Q("82.000001 mm")),
    Sketcher.Constraint("DistanceY", -1, 1, 1, 3, Q("7.999999 mm")),
    Sketcher.Constraint("DistanceX", 2, 1, 2, 2, Q("39.169623 mm")),
])
pocket3 = doc.addObject("PartDesign::Pocket", "Pocket002")
body.addObject(pocket3)
pocket3.Profile = sketch9
pocket3.Length = 50

sketch10 = doc.addObject("Sketcher::SketchObject", "Sketch009")
body.addObject(sketch10)
sketch10.AttachmentSupport = (doc.XY_Plane, [""])
sketch10.MapMode = "FlatFace"
sketch10.AttachmentOffset = App.Placement(App.Vector(0, 0, 25), App.Rotation())
sketch10.addGeometry([
    Part.LineSegment(App.Vector(-88, -8, 0), App.Vector(-88, -24, 0)),
    Part.ArcOfCircle(Part.Circle(App.Vector(-82, -25, 0), App.Vector(0, 0, 1), 6), math.radians(180), math.radians(270)),
    Part.LineSegment(App.Vector(-82, -30, 0), App.Vector(-15, -30, 0)),
    Part.ArcOfCircle(Part.Circle(App.Vector(-15, -25, 0), App.Vector(0, 0, 1), 6), math.radians(-90), math.radians(0)),
    Part.LineSegment(App.Vector(-9, -24, 0), App.Vector(-9, -8, 0)),
    Part.ArcOfCircle(Part.Circle(App.Vector(-15, -8, 0), App.Vector(0, 0, 1), 6), math.radians(0), math.radians(90)),
    Part.LineSegment(App.Vector(-15, -2, 0), App.Vector(-27, -2, 0)),
    Part.ArcOfCircle(Part.Circle(App.Vector(-27, 8, 0), App.Vector(0, 0, 1), 10), math.radians(-143), math.radians(-90)),
    Part.ArcOfCircle(Part.Circle(App.Vector(-43, 8, 0), App.Vector(0, 0, 1), 10), math.radians(-90), math.radians(-37)),
    Part.LineSegment(App.Vector(-43, -2, 0), App.Vector(-82, -2, 0)),
    Part.ArcOfCircle(Part.Circle(App.Vector(-82, -8, 0), App.Vector(0, 0, 1), 6), math.radians(90), math.radians(180)),
], False)
sketch10.addConstraint([
    Sketcher.Constraint("Tangent", 0, 2, 1, 1),
    Sketcher.Constraint("Tangent", 1, 2, 2, 1),
    Sketcher.Constraint("Tangent", 2, 2, 3, 1),
    Sketcher.Constraint("Tangent", 3, 2, 4, 1),
    Sketcher.Constraint("Tangent", 4, 2, 5, 1),
    Sketcher.Constraint("Tangent", 5, 2, 6, 1),
    Sketcher.Constraint("Tangent", 6, 2, 7, 2),
    Sketcher.Constraint("Coincident", 7, 1, 8, 2),
    Sketcher.Constraint("Tangent", 8, 1, 9, 1),
    Sketcher.Constraint("Tangent", 9, 2, 10, 1),
    Sketcher.Constraint("Tangent", 10, 2, 0, 1),
    Sketcher.Constraint("Vertical", 0),
    Sketcher.Constraint("Horizontal", 2),
    Sketcher.Constraint("Vertical", 4),
    Sketcher.Constraint("Horizontal", 6),
    Sketcher.Constraint("Horizontal", 9),
    Sketcher.Constraint("Equal", 1, 3),
    Sketcher.Constraint("Equal", 3, 5),
    Sketcher.Constraint("Equal", 5, 10),
    Sketcher.Constraint("Horizontal", 5, 3, 10, 3),
    Sketcher.Constraint("Radius", 1, Q("5.999999 mm")),
    Sketcher.Constraint("Radius", 8, Q("9.999999 mm")),
    Sketcher.Constraint("DistanceY", 0, 2, 0, 1, Q("16.5 mm")),
    Sketcher.Constraint("DistanceX", 1, 3, -1, 1, Q("82.000001 mm")),
    Sketcher.Constraint("DistanceY", 5, 3, -1, 1, Q("7.999999 mm")),
    Sketcher.Constraint("DistanceY", -1, 1, 7, 1, Q("2 mm")),
    Sketcher.Constraint("DistanceY", 5, 3, 7, 3, Q("16.000002 mm")),
    Sketcher.Constraint("DistanceX", 2, 1, 2, 2, Q("66.535129 mm")),
    Sketcher.Constraint("DistanceX", 6, 2, 6, 1, Q("11.365506 mm")),
])
pocket4 = doc.addObject("PartDesign::Pocket", "Pocket003")
body.addObject(pocket4)
pocket4.Profile = sketch10
pocket4.Length = 24

sketch11 = doc.addObject("Sketcher::SketchObject", "Sketch010")
body.addObject(sketch11)
sketch11.AttachmentSupport = (doc.XY_Plane, [""])
sketch11.MapMode = "FlatFace"
sketch11.addGeometry([
    Part.ArcOfCircle(Part.Circle(App.Vector(-82, -57, 0), App.Vector(0, 0, 1), 8), math.radians(-180), math.radians(-90)),
    Part.LineSegment(App.Vector(-82, -65, 0), App.Vector(11.9, -65, 0)),
    Part.ArcOfCircle(Part.Circle(App.Vector(11.9, -57, 0), App.Vector(0, 0, 1), 8), math.radians(-90), math.radians(0)),
    Part.LineSegment(App.Vector(19.9, -57, 0), App.Vector(19.9, -8, 0)),
    Part.ArcOfCircle(Part.Circle(App.Vector(11.9, -8, 0), App.Vector(0, 0, 1), 8), math.radians(0), math.radians(90)),
    Part.LineSegment(App.Vector(11.9, 0, 0), App.Vector(0.5, 0, 0)),
    Part.ArcOfCircle(Part.Circle(App.Vector(0.5, -8, 0), App.Vector(0, 0, 1), 8), math.radians(90), math.radians(180)),
    Part.LineSegment(App.Vector(-7.5, -8, 0), App.Vector(-7.5, -24.5, 0)),
    Part.ArcOfCircle(Part.Circle(App.Vector(-15.5, -24.5, 0), App.Vector(0, 0, 1), 8), math.radians(-90), math.radians(0)),
    Part.LineSegment(App.Vector(-15.5, -32.5, 0), App.Vector(-82, -32.5, 0)),
    Part.ArcOfCircle(Part.Circle(App.Vector(-82, -40.5, 0), App.Vector(0, 0, 1), 8), math.radians(90), math.radians(180)),
    Part.LineSegment(App.Vector(-90, -40.5, 0), App.Vector(-90, -57, 0)),
    Part.LineSegment(App.Vector(16.9, -8, 0), App.Vector(16.9, -57, 0)),
    Part.ArcOfCircle(Part.Circle(App.Vector(11.9, -57, 0), App.Vector(0, 0, 1), 5), math.radians(-90), math.radians(0)),
    Part.LineSegment(App.Vector(11.9, -62, 0), App.Vector(-82, -62, 0)),
    Part.ArcOfCircle(Part.Circle(App.Vector(-82, -57, 0), App.Vector(0, 0, 1), 5), math.radians(180), math.radians(270)),
    Part.LineSegment(App.Vector(-87, -57, 0), App.Vector(-87, -40.5, 0)),
    Part.ArcOfCircle(Part.Circle(App.Vector(-82, -40.5, 0), App.Vector(0, 0, 1), 5), math.radians(90), math.radians(180)),
    Part.LineSegment(App.Vector(-82, -35.5, 0), App.Vector(-15.5, -35.5, 0)),
    Part.ArcOfCircle(Part.Circle(App.Vector(-15.5, -24.5, 0), App.Vector(0, 0, 1), 11), math.radians(-90), math.radians(0)),
    Part.LineSegment(App.Vector(-4.5, -24.5, 0), App.Vector(-4.5, -8, 0)),
    Part.ArcOfCircle(Part.Circle(App.Vector(0.5, -8, 0), App.Vector(0, 0, 1), 5), math.radians(90), math.radians(180)),
    Part.LineSegment(App.Vector(0.5, -3, 0), App.Vector(11.9, -3, 0)),
    Part.ArcOfCircle(Part.Circle(App.Vector(11.9, -8, 0), App.Vector(0, 0, 1), 5), math.radians(0), math.radians(90)),
], False)
sketch11.addConstraint([
    Sketcher.Constraint("Tangent", 0, 2, 1, 1),
    Sketcher.Constraint("Tangent", 1, 2, 2, 1),
    Sketcher.Constraint("Tangent", 2, 2, 3, 1),
    Sketcher.Constraint("Tangent", 3, 2, 4, 1),
    Sketcher.Constraint("Tangent", 4, 2, 5, 1),
    Sketcher.Constraint("Tangent", 5, 2, 6, 1),
    Sketcher.Constraint("Tangent", 6, 2, 7, 1),
    Sketcher.Constraint("Tangent", 7, 2, 8, 2),
    Sketcher.Constraint("Tangent", 8, 1, 9, 1),
    Sketcher.Constraint("Tangent", 9, 2, 10, 1),
    Sketcher.Constraint("Tangent", 10, 2, 11, 1),
    Sketcher.Constraint("Tangent", 11, 2, 0, 1),
    Sketcher.Constraint("Tangent", 12, 2, 13, 2),
    Sketcher.Constraint("Tangent", 13, 1, 14, 1),
    Sketcher.Constraint("Tangent", 14, 2, 15, 2),
    Sketcher.Constraint("Tangent", 15, 1, 16, 1),
    Sketcher.Constraint("Tangent", 16, 2, 17, 2),
    Sketcher.Constraint("Tangent", 17, 1, 18, 1),
    Sketcher.Constraint("Tangent", 18, 2, 19, 1),
    Sketcher.Constraint("Tangent", 19, 2, 20, 1),
    Sketcher.Constraint("Tangent", 20, 2, 21, 2),
    Sketcher.Constraint("Tangent", 21, 1, 22, 1),
    Sketcher.Constraint("Tangent", 22, 2, 23, 2),
    Sketcher.Constraint("Tangent", 23, 1, 12, 1),
    Sketcher.Constraint("Horizontal", 1),
    Sketcher.Constraint("Vertical", 3),
    Sketcher.Constraint("Horizontal", 5),
    Sketcher.Constraint("Vertical", 7),
    Sketcher.Constraint("Horizontal", 9),
    Sketcher.Constraint("Vertical", 11),
    Sketcher.Constraint("Vertical", 12),
    Sketcher.Constraint("Horizontal", 14),
    Sketcher.Constraint("Vertical", 16),
    Sketcher.Constraint("Horizontal", 18),
    Sketcher.Constraint("Vertical", 20),
    Sketcher.Constraint("Horizontal", 22),
    Sketcher.Constraint("Coincident", 13, 3, 2, 3),
    Sketcher.Constraint("Coincident", 15, 3, 0, 3),
    Sketcher.Constraint("Coincident", 17, 3, 10, 3),
    Sketcher.Constraint("Coincident", 19, 3, 8, 3),
    Sketcher.Constraint("Coincident", 21, 3, 6, 3),
    Sketcher.Constraint("Equal", 0, 2),
    Sketcher.Constraint("Equal", 2, 4),
    Sketcher.Constraint("Equal", 4, 6),
    Sketcher.Constraint("Equal", 6, 8),
    Sketcher.Constraint("Equal", 8, 10),
    Sketcher.Constraint("Equal", 21, 23),
    Sketcher.Constraint("PointOnObject", 4, 2, -1),
    Sketcher.Constraint("Equal", 7, 11),
    Sketcher.Constraint("Radius", 0, Q("8.000001 mm")),
    Sketcher.Constraint("Radius", 13, Q("5 mm")),
    Sketcher.Constraint("DistanceY", 3, 1, 3, 2, Q("49 mm")),
    Sketcher.Constraint("DistanceX", 0, 3, -1, 1, Q("81.999999 mm")),
    Sketcher.Constraint("DistanceX", 9, 2, 9, 1, Q("66.535129 mm")),
    Sketcher.Constraint("DistanceX", 1, 1, 1, 2, Q("93.900635 mm")),
])
pad7 = doc.addObject("PartDesign::Pad", "Pad006")
body.addObject(pad7)
pad7.Profile = sketch11
pad7.Length = 5

doc.recompute()
